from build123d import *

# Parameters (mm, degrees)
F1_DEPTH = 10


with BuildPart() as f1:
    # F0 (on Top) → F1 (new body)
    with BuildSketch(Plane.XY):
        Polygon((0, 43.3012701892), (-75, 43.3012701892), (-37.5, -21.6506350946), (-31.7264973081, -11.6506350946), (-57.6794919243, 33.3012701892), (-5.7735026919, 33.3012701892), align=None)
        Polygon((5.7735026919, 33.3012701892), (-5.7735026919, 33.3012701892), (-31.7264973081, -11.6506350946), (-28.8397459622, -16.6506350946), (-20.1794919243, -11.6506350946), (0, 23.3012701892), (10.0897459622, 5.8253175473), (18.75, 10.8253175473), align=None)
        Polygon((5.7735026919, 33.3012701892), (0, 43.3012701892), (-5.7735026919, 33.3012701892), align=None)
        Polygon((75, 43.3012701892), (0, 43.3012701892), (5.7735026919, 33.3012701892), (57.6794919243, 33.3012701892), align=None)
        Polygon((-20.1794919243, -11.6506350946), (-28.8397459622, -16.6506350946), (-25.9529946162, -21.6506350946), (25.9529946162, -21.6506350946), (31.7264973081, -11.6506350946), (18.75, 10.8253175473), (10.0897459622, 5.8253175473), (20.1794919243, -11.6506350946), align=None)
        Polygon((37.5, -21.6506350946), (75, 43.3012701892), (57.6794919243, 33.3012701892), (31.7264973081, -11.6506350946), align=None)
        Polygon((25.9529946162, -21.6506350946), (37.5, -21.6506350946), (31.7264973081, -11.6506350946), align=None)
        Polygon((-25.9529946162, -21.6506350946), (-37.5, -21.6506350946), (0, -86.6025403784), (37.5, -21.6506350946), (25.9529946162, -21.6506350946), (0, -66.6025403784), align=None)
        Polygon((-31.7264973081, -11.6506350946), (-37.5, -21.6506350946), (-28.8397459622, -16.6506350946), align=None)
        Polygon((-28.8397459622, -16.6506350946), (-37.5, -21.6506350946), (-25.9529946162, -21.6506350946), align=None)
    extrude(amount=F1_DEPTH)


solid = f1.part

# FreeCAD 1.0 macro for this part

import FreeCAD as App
import Part
import Sketcher

V = App.Vector
Q = App.Units.Quantity


def add_polygon(sketch, points):
    """Adds a closed chain of lines whose ends are joined by coincident constraints."""
    first, n = sketch.GeometryCount, len(points)
    for a, b in zip(points, points[1:] + points[:1]):
        sketch.addGeometry(Part.LineSegment(App.Vector(*a, 0), App.Vector(*b, 0)), False)
    for i in range(n):
        sketch.addConstraint(Sketcher.Constraint("Coincident", first + i, 2, first + (i + 1) % n, 1))

doc = App.newDocument("Part")
body = doc.addObject("PartDesign::Body", "Body")

# Sketch on XY plane
sketch1 = doc.addObject("Sketcher::SketchObject", "Sketch")
body.addObject(sketch1)
sketch1.AttachmentSupport = (doc.XY_Plane, [""])
sketch1.MapMode = "FlatFace"
add_polygon(sketch1, [(-75, 43), (0, -87), (75, 43)])  # lines 0-2
add_polygon(sketch1, [(0, -67), (-26, -22), (26, -22)])  # lines 3-5
add_polygon(sketch1, [(-6, 33), (-32, -12), (-58, 33)])  # lines 6-8
add_polygon(sketch1, [(0, 23), (10, 6), (20, -12), (-20, -12)])  # lines 9-12
add_polygon(sketch1, [(58, 33), (32, -12), (6, 33)])  # lines 13-15
sketch1.addConstraint(Sketcher.Constraint("Horizontal", 2))
sketch1.addConstraint(Sketcher.Constraint("Horizontal", 4))
sketch1.addConstraint(Sketcher.Constraint("Horizontal", 8))
sketch1.addConstraint(Sketcher.Constraint("Horizontal", 11))
sketch1.addConstraint(Sketcher.Constraint("Horizontal", 15))
sketch1.addConstraint(Sketcher.Constraint("Symmetric", 6, 2, 13, 2, -2))
sketch1.addConstraint(Sketcher.Constraint("Symmetric", 8, 2, 14, 2, -2))
sketch1.addConstraint(Sketcher.Constraint("PointOnObject", 0, 2, -2))
sketch1.addConstraint(Sketcher.Constraint("PointOnObject", 5, 2, -2))
sketch1.addConstraint(Sketcher.Constraint("PointOnObject", 12, 2, -2))
sketch1.addConstraint(Sketcher.Constraint("Parallel", 0, 3))
sketch1.addConstraint(Sketcher.Constraint("Parallel", 1, 5))
sketch1.addConstraint(Sketcher.Constraint("Parallel", 5, 6))
sketch1.addConstraint(Sketcher.Constraint("Parallel", 3, 7))
sketch1.addConstraint(Sketcher.Constraint("Parallel", 7, 9))
sketch1.addConstraint(Sketcher.Constraint("Parallel", 9, 10))
sketch1.addConstraint(Sketcher.Constraint("Parallel", 6, 12))
sketch1.addConstraint(Sketcher.Constraint("Parallel", 12, 13))
sketch1.addConstraint(Sketcher.Constraint("Parallel", 10, 14))
sketch1.addConstraint(Sketcher.Constraint("Horizontal", 6, 2, 10, 2))
sketch1.addConstraint(Sketcher.Constraint("Equal", 4, 8))
sketch1.addConstraint(Sketcher.Constraint("Equal", 9, 10))
sketch1.addConstraint(Sketcher.Constraint("DistanceX", 2, 2, 2, 1, Q("150 mm")))
sketch1.addConstraint(Sketcher.Constraint("Angle", 0, Q("-60 deg")))
sketch1.addConstraint(Sketcher.Constraint("DistanceY", 0, 2, 5, 2, Q("20 mm")))
sketch1.addConstraint(Sketcher.Constraint("DistanceY", 3, 2, 6, 2, Q("10 mm")))
sketch1.addConstraint(Sketcher.Constraint("DistanceY", 7, 2, 2, 2, Q("10 mm")))
sketch1.addConstraint(Sketcher.Constraint("DistanceY", 12, 2, 8, 2, Q("10 mm")))
sketch1.addConstraint(Sketcher.Constraint("DistanceY", 0, 2, -1, 1, Q("86.60254 mm")))
sketch1.addConstraint(Sketcher.Constraint("DistanceX", 7, 2, -1, 1, Q("57.679492 mm")))
pad1 = doc.addObject("PartDesign::Pad", "Pad")
body.addObject(pad1)
pad1.Profile = sketch1
pad1.Length = 10

doc.recompute()
